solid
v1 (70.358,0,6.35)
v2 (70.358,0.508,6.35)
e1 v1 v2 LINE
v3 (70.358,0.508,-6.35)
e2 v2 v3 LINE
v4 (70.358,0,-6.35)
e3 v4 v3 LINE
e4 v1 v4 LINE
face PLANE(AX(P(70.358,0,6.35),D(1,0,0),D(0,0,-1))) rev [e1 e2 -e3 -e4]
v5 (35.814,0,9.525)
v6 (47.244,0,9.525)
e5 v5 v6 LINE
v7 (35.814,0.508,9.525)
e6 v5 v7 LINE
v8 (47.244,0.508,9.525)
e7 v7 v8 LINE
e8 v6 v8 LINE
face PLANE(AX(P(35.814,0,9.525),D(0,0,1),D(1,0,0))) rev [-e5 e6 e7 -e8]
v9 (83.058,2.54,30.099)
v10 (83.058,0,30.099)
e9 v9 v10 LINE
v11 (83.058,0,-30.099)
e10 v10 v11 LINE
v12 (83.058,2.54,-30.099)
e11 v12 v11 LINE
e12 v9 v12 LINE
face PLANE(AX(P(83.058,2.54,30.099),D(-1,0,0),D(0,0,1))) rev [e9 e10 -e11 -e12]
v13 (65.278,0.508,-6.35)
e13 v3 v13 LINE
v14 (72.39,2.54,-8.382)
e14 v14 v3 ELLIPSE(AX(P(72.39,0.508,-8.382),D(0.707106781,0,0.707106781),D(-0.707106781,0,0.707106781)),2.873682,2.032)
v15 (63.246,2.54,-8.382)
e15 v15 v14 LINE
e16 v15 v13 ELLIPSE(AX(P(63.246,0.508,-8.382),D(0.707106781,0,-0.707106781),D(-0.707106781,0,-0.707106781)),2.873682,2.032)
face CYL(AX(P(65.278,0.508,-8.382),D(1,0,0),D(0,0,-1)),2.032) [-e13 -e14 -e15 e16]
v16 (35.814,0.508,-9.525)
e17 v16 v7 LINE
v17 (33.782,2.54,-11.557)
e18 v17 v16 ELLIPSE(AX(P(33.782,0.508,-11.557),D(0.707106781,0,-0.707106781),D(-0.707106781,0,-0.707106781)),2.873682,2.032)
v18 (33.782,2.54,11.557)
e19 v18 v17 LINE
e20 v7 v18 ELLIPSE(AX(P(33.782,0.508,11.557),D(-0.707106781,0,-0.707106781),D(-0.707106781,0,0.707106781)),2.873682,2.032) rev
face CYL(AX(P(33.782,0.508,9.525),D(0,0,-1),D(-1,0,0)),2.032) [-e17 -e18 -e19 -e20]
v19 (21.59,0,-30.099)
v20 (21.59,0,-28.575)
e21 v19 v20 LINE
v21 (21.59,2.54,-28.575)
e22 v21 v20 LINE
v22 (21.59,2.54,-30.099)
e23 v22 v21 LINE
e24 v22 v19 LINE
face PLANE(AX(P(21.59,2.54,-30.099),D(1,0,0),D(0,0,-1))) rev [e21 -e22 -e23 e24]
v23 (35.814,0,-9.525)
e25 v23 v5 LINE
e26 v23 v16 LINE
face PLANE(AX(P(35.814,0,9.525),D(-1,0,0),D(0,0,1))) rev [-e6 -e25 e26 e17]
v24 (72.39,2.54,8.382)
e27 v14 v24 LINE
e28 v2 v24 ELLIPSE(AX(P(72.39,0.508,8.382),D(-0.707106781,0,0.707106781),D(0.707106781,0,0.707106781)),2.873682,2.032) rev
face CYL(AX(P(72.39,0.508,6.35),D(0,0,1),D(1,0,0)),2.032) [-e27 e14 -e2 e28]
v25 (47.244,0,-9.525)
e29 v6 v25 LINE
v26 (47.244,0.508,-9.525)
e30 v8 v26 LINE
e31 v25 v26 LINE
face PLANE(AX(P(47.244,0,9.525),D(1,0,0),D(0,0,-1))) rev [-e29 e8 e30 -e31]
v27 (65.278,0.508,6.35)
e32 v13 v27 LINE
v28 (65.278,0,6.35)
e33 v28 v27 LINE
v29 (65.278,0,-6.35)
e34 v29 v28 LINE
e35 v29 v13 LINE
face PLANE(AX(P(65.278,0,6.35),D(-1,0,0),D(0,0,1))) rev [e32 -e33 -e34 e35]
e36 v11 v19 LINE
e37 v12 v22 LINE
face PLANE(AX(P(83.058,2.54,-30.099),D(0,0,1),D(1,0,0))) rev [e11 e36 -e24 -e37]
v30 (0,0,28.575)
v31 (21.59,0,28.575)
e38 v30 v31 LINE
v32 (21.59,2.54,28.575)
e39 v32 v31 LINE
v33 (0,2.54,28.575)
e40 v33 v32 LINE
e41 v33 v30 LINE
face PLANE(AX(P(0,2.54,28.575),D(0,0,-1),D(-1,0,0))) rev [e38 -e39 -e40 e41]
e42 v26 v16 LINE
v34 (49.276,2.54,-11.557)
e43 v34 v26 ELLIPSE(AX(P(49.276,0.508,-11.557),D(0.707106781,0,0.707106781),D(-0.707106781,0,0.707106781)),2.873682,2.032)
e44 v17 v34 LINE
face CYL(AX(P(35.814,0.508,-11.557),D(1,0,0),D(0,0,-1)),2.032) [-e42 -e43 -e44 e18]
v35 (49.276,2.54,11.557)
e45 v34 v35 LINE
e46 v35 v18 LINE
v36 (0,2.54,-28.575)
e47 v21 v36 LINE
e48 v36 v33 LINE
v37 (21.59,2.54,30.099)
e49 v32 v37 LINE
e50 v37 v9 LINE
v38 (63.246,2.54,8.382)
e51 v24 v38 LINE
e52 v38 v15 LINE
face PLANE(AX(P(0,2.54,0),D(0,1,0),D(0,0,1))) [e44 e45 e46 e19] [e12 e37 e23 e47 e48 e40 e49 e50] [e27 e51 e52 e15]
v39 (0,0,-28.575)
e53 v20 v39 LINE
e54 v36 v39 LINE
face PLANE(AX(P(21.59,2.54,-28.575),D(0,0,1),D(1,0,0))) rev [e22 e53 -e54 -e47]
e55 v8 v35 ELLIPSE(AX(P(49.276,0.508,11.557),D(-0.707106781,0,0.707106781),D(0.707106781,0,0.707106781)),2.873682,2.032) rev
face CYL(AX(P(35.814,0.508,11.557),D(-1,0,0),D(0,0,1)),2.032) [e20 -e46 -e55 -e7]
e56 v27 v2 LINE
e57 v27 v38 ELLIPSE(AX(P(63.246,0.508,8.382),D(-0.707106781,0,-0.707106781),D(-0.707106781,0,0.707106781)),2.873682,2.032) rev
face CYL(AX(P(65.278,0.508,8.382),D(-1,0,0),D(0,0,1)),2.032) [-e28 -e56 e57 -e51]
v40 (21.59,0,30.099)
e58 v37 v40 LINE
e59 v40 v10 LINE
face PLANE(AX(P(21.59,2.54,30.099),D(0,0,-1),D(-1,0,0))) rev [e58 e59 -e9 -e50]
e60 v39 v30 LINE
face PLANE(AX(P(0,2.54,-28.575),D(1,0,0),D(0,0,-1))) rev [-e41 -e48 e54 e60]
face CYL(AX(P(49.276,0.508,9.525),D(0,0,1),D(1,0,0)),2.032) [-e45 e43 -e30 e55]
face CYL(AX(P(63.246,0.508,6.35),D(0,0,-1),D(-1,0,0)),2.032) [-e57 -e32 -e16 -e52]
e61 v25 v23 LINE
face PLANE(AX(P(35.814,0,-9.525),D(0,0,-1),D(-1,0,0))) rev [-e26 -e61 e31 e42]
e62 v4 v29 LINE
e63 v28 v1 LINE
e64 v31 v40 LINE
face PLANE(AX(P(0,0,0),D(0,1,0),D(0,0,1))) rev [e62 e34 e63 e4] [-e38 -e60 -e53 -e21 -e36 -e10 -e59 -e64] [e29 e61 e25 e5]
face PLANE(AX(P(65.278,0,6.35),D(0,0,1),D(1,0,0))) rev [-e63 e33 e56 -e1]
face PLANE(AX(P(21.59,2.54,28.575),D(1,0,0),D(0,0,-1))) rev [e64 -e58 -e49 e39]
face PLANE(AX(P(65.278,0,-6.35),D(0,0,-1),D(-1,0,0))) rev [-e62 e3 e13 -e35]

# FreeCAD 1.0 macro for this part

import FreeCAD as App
import Part
import Sketcher
from FreeCAD import Vector
Q = App.Units.Quantity


def edges_at(feature, points):
    """Names of the edges that pass closest to the given points."""
    edges = feature.Shape.Edges
    near = lambda p: min(range(len(edges)), key=lambda i: edges[i].distToShape(Part.Vertex(*p))[0])
    return sorted({f"Edge{near(p) + 1}" for p in points})


def add_polygon(sketch, points):
    """Adds a closed chain of lines whose ends are joined by coincident constraints."""
    first, n = sketch.GeometryCount, len(points)
    for a, b in zip(points, points[1:] + points[:1]):
        sketch.addGeometry(Part.LineSegment(App.Vector(*a, 0), App.Vector(*b, 0)), False)
    for i in range(n):
        sketch.addConstraint(Sketcher.Constraint("Coincident", first + i, 2, first + (i + 1) % n, 1))

doc = App.newDocument("Part")
body = doc.addObject("PartDesign::Body", "Body")

# Sketch on XZ plane
sketch1 = body.newObject("Sketcher::SketchObject", "Sketch")
sketch1.AttachmentSupport = (doc.getObject("XZ_Plane"), [""])
sketch1.MapMode = "FlatFace"
add_polygon(sketch1, [(0, -28.6), (0, 28.6), (21.6, 28.6), (21.6, 30.1), (83.1, 30.1), (83.1, -30.1), (21.6, -30.1), (21.6, -28.6)])  # lines 0-7
sketch1.addConstraint([
    Sketcher.Constraint("Vertical", 0),
    Sketcher.Constraint("Horizontal", 1),
    Sketcher.Constraint("Vertical", 2),
    Sketcher.Constraint("Horizontal", 3),
    Sketcher.Constraint("Vertical", 4),
    Sketcher.Constraint("Horizontal", 5),
    Sketcher.Constraint("Vertical", 6),
    Sketcher.Constraint("Horizontal", 7),
    Sketcher.Constraint("Symmetric", 0, 2, 7, 2, -1, 1),
    Sketcher.Constraint("Symmetric", 2, 2, 5, 2, -1),
    Sketcher.Constraint("DistanceX", 1, 1, 1, 2, Q("0.85 in")),
    Sketcher.Constraint("DistanceX", 3, 1, 3, 2, Q("2.42 in")),
    Sketcher.Constraint("DistanceY", 0, 1, 0, 2, Q("2.25 in")),
    Sketcher.Constraint("DistanceY", 2, 1, 2, 2, Q("0.06 in")),
])
pad1 = body.newObject("PartDesign::Pad", "Pad")
pad1.Profile = sketch1
pad1.Length = Q("0.1 in")
pad1.Reversed = True

# Sketch on XZ plane
sketch2 = body.newObject("Sketcher::SketchObject", "Sketch001")
sketch2.AttachmentSupport = (doc.getObject("XZ_Plane"), [""])
sketch2.MapMode = "FlatFace"
sketch2.AttachmentOffset = App.Placement(Vector(0, 0, -0.1 * 25.4), App.Rotation())
add_polygon(sketch2, [(36, -10), (36, 10), (47, 10), (47, -10)])  # lines 0-3
add_polygon(sketch2, [(65, -6), (65, 6), (70, 6), (70, -6)])  # lines 4-7
sketch2.addConstraint([
    Sketcher.Constraint("Vertical", 0),
    Sketcher.Constraint("Horizontal", 1),
    Sketcher.Constraint("Vertical", 2),
    Sketcher.Constraint("Horizontal", 3),
    Sketcher.Constraint("Vertical", 4),
    Sketcher.Constraint("Horizontal", 5),
    Sketcher.Constraint("Vertical", 6),
    Sketcher.Constraint("Horizontal", 7),
    Sketcher.Constraint("DistanceX", 5, 1, 5, 2, Q("0.2 in")),
    Sketcher.Constraint("DistanceY", 4, 1, 4, 2, Q("0.5 in")),
    Sketcher.Constraint("DistanceX", 1, 1, 1, 2, Q("0.45 in")),
    Sketcher.Constraint("DistanceY", 0, 1, 0, 2, Q("0.75 in")),
    Sketcher.Constraint("DistanceX", -1, 1, 0, 2, Q("1.41 in")),
    Sketcher.Constraint("DistanceX", -1, 1, 4, 2, Q("2.57 in")),
    Sketcher.Constraint("DistanceY", -1, 1, 4, 2, Q("0.25 in")),
    Sketcher.Constraint("DistanceY", -1, 1, 0, 2, Q("0.375 in")),
])
pocket1 = body.newObject("PartDesign::Pocket", "Pocket")
pocket1.Profile = sketch2
pocket1.Type = "ThroughAll"
pocket1.Reversed = True
doc.recompute()

fillet = body.newObject("PartDesign::Fillet", "Fillet")
fillet.Base = (pocket1, edges_at(pocket1, [
    (47.244, 2.54, 0),
    (41.529, 2.54, -9.525),
    (35.814, 2.54, 0),
    (41.529, 2.54, 9.525),
    (70.358, 2.54, 0),
    (67.818, 2.54, -6.35),
    (65.278, 2.54, 0),
    (67.818, 2.54, 6.35),
]))
fillet.Radius = Q("0.08 in")

doc.recompute()
